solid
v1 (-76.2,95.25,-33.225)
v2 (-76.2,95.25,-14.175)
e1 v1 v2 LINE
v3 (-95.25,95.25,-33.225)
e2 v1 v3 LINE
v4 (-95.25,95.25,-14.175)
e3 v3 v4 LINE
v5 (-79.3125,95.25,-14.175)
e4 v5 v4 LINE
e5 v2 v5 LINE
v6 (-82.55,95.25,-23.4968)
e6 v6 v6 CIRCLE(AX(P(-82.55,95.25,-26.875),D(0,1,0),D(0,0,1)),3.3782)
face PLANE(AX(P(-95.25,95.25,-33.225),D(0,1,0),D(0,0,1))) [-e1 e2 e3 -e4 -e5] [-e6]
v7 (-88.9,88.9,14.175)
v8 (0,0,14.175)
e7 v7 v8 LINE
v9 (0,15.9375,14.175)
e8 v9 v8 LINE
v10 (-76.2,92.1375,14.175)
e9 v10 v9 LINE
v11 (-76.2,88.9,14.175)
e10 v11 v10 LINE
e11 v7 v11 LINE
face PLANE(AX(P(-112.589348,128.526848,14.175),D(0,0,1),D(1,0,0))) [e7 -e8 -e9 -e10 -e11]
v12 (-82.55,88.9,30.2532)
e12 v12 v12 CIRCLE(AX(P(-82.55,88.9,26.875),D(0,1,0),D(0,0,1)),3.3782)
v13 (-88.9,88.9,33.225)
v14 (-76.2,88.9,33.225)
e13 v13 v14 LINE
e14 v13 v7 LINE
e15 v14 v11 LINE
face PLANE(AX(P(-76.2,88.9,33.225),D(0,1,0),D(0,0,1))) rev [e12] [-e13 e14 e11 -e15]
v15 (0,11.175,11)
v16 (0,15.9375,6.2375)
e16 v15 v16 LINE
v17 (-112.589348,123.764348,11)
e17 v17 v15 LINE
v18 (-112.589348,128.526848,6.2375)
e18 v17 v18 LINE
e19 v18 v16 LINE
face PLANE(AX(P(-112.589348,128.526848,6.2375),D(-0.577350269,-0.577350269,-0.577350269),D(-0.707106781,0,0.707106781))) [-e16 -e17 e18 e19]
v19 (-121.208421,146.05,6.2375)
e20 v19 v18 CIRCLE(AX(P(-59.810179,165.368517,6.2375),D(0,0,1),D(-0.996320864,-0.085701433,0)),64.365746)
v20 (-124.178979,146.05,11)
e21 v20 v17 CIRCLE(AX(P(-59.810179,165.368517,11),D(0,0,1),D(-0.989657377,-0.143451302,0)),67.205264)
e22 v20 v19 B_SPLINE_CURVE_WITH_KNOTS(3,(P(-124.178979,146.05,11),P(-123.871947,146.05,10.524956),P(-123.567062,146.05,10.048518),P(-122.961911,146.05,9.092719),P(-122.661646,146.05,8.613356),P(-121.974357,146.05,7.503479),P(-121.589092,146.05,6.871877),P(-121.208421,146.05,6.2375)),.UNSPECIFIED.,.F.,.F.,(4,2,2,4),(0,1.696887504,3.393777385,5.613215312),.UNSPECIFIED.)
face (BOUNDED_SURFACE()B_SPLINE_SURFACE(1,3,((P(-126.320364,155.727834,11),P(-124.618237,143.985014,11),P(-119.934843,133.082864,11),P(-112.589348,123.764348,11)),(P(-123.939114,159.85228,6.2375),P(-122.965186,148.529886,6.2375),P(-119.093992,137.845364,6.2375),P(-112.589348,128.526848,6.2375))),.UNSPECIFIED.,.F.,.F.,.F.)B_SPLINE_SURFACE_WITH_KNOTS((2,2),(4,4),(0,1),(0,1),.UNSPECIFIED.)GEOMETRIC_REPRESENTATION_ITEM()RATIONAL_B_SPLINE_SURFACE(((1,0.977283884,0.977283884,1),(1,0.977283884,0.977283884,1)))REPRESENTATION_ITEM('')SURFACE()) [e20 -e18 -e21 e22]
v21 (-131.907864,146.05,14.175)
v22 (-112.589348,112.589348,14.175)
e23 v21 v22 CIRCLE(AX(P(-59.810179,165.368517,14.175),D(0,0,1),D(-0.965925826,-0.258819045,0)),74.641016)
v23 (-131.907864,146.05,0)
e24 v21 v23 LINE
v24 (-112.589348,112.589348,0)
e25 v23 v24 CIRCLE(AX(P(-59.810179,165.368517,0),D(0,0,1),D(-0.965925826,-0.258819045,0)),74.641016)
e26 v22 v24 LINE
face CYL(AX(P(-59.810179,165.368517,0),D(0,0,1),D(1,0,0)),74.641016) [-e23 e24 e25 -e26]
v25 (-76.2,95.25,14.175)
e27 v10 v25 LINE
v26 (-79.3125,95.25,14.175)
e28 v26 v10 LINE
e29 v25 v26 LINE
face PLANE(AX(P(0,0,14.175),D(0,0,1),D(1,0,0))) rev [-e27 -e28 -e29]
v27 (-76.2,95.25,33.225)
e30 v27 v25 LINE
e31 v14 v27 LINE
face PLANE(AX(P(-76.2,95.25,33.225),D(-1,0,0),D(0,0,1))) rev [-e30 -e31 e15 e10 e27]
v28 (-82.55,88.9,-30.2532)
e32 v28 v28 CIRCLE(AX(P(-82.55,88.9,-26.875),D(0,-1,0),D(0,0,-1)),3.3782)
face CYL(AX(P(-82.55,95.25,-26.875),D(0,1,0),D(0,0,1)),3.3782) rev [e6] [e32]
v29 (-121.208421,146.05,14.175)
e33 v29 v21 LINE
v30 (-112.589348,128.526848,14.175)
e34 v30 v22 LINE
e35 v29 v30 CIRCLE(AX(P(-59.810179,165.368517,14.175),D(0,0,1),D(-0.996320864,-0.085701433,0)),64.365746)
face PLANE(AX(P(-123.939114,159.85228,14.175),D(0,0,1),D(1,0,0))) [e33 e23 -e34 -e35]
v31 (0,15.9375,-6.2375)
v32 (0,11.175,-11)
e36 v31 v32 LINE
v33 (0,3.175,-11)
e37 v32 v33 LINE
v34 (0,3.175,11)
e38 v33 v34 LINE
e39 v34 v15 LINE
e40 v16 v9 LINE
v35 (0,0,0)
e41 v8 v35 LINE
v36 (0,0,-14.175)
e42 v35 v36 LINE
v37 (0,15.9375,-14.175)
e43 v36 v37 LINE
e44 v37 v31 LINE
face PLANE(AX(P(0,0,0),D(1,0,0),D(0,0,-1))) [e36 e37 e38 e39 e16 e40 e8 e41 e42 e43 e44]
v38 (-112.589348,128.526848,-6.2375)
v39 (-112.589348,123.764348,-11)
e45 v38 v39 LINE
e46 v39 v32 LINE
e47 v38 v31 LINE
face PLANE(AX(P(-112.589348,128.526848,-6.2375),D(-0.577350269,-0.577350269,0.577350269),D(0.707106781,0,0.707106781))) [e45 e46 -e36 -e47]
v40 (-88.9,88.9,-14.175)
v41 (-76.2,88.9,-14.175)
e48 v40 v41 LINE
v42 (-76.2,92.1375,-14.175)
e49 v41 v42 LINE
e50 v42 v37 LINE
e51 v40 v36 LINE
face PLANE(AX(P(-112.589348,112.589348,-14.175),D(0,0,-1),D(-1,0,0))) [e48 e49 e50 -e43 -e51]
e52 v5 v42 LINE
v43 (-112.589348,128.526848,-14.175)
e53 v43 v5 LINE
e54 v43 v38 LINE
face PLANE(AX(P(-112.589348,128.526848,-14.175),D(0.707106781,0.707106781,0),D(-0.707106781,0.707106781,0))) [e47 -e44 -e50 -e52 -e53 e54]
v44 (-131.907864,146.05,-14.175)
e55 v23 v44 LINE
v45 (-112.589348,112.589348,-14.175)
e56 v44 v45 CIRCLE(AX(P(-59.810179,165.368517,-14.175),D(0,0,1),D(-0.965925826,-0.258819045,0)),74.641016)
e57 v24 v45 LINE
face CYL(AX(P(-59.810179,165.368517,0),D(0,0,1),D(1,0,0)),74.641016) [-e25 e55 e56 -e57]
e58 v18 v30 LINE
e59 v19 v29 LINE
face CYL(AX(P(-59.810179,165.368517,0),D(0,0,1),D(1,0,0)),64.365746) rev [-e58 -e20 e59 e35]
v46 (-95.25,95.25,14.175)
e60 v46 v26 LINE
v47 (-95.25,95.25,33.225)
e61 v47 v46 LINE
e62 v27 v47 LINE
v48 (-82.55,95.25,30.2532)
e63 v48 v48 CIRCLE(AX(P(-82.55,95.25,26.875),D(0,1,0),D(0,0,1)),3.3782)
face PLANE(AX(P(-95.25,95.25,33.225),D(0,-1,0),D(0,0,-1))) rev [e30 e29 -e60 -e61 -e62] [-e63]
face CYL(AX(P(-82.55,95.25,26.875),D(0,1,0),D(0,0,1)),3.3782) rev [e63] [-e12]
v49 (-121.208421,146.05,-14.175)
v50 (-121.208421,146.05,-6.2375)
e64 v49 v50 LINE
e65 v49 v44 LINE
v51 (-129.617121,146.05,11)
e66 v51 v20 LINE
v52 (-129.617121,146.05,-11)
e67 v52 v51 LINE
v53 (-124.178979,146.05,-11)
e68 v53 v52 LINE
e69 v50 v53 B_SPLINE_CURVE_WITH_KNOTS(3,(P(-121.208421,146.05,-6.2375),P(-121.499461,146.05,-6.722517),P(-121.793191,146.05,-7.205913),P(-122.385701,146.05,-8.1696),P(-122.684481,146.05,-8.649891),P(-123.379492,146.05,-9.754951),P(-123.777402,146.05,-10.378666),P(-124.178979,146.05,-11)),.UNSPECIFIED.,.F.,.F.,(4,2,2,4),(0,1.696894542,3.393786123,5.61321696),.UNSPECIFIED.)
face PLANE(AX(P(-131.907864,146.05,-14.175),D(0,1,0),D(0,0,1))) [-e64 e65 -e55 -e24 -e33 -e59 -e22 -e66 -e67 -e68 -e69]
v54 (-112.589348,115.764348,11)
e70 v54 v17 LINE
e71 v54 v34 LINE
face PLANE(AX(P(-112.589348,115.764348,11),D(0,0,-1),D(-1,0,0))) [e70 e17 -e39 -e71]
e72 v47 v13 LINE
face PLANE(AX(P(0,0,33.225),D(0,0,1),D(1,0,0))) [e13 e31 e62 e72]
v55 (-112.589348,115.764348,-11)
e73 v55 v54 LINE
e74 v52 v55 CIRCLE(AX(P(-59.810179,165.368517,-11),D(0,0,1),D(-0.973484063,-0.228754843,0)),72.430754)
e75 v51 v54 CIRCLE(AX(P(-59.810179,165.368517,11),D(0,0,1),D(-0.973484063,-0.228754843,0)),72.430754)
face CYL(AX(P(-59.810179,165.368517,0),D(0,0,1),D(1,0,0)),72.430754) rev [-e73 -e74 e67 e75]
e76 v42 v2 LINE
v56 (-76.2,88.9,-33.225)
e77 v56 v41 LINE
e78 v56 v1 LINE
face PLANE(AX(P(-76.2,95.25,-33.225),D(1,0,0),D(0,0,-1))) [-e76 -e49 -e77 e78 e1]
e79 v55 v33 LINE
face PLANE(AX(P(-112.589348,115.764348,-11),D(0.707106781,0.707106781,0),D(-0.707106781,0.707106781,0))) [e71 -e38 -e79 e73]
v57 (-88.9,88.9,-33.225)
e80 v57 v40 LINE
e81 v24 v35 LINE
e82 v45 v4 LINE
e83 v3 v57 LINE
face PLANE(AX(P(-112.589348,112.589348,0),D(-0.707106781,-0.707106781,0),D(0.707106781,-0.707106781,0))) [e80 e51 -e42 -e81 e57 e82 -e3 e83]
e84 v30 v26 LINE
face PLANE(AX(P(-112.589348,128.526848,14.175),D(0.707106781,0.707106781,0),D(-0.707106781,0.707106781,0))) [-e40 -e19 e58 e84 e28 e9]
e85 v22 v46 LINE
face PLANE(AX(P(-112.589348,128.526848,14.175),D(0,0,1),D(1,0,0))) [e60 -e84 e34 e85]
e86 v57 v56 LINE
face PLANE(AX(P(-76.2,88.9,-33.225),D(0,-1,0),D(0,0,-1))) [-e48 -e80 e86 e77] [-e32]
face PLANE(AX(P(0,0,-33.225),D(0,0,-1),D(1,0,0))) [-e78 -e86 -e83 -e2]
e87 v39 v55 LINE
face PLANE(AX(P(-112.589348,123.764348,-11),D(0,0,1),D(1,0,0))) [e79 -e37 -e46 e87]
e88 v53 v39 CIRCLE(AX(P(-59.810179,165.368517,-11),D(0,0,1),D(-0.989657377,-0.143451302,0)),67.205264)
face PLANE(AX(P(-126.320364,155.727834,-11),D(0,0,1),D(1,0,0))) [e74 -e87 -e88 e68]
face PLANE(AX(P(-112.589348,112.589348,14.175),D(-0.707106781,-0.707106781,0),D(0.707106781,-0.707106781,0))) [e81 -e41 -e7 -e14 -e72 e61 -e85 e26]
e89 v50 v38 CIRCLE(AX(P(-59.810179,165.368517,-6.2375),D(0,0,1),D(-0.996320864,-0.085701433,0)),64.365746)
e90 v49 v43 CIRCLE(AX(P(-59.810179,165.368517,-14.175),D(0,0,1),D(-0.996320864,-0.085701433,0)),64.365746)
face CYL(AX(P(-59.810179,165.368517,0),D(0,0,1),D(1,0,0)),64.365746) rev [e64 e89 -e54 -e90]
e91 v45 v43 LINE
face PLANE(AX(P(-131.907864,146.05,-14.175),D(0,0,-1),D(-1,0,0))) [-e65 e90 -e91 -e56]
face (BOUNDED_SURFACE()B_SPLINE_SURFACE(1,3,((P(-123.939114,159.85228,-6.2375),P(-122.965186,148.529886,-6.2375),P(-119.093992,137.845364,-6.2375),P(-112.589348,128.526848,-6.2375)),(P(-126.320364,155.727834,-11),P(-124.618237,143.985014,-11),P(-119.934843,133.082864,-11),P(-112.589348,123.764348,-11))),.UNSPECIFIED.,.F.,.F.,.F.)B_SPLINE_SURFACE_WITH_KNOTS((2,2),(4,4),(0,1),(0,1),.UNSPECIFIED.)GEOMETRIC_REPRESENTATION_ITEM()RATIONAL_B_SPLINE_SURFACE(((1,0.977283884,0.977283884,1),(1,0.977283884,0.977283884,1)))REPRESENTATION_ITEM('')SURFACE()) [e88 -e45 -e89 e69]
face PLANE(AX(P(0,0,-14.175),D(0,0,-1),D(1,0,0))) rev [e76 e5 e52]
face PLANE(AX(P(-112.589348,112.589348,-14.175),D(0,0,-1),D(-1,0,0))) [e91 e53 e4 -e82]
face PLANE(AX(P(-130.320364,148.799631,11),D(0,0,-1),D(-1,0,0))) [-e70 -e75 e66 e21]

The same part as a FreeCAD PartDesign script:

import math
import FreeCAD as App
import Part
import Sketcher
Q = App.Units.Quantity


def add_polygon(sketch, points):
    """Adds a closed chain of lines whose ends are joined by coincident constraints."""
    first, n = sketch.GeometryCount, len(points)
    for a, b in zip(points, points[1:] + points[:1]):
        sketch.addGeometry(Part.LineSegment(App.Vector(*a, 0), App.Vector(*b, 0)), False)
    for i in range(n):
        sketch.addConstraint(Sketcher.Constraint("Coincident", first + i, 2, first + (i + 1) % n, 1))

doc = App.newDocument("Part")
body = doc.addObject("PartDesign::Body", "Body")

sketch1 = doc.addObject("Sketcher::SketchObject", "Sketch")
body.addObject(sketch1)
sketch1.AttachmentSupport = (doc.YZ_Plane, [""])
sketch1.MapMode = "FlatFace"
add_polygon(sketch1, [(0, -14), (16, -14), (16, -6), (11, -11), (3, -11), (3, 11), (11, 11), (16, 6), (16, 14), (0, 14)])
sketch1.addConstraint([
    Sketcher.Constraint("Horizontal", 0),
    Sketcher.Constraint("Vertical", 1),
    Sketcher.Constraint("Horizontal", 3),
    Sketcher.Constraint("Vertical", 4),
    Sketcher.Constraint("Horizontal", 5),
    Sketcher.Constraint("Vertical", 7),
    Sketcher.Constraint("Horizontal", 8),
    Sketcher.Constraint("Vertical", 9),
    Sketcher.Constraint("Symmetric", 8, 2, 9, 2, -1, 1),
    Sketcher.Constraint("Symmetric", 2, 2, 5, 2, -1),
    Sketcher.Constraint("Symmetric", 1, 2, 6, 2, -1),
    Sketcher.Constraint("Perpendicular", 2, 6),
    Sketcher.Constraint("DistanceY", 1, 1, 1, 2, Q("0.3125 in")),
    Sketcher.Constraint("DistanceX", -1, 1, 3, 2, Q("0.125 in")),
    Sketcher.Constraint("DistanceX", 2, 2, 0, 2, Q("0.1875 in")),
    Sketcher.Constraint("DistanceX", 0, 1, 0, 2, Q("15.9375 mm")),
    Sketcher.Constraint("DistanceY", 4, 1, 4, 2, Q("22 mm")),
])

sketch2 = doc.addObject("Sketcher::SketchObject", "Sketch001")
body.addObject(sketch2)
sketch2.AttachmentSupport = (doc.XY_Plane, [""])
sketch2.MapMode = "FlatFace"
sketch2.addGeometry([
    Part.LineSegment(App.Vector(0, 0, 0), App.Vector(-113, 113, 0)),
    Part.ArcOfCircle(Part.Circle(App.Vector(-60, 165, 0), App.Vector(0, 0, 1), 75), math.radians(-165), math.radians(-135)),
], False)
sketch2.addConstraint([
    Sketcher.Constraint("Tangent", 0, 2, 1, 2),
    Sketcher.Constraint("Coincident", 0, 1, -1, 1),
    Sketcher.Constraint("Angle", 0, Q("135 deg")),
    Sketcher.Constraint("DistanceY", -1, 1, 1, 1, Q("5.75 in")),
    Sketcher.Constraint("Radius", 1, Q("74.641016 mm")),
    Sketcher.Constraint("DistanceX", 1, 3, -1, 1, Q("59.810179 mm")),
])
doc.recompute()

additivepipe = doc.addObject("PartDesign::AdditivePipe", "AdditivePipe")
body.addObject(additivepipe)
additivepipe.Profile = sketch1
additivepipe.Spine = (sketch2, ["Edge1", "Edge2"])

sketch3 = doc.addObject("Sketcher::SketchObject", "Sketch002")
body.addObject(sketch3)
sketch3.AttachmentSupport = (doc.XY_Plane, [""])
sketch3.MapMode = "FlatFace"
sketch3.AttachmentOffset = App.Placement(App.Vector(0, 0, 14.175), App.Rotation())
add_polygon(sketch3, [(-121, 146), (-132, 146), (-124, 160)])
sketch3.addConstraint([
    Sketcher.Constraint("Horizontal", 0),
    Sketcher.Constraint("Angle", 1, Q("60 deg")),
    Sketcher.Constraint("DistanceY", -1, 1, 0, 2, Q("5.75 in")),
    Sketcher.Constraint("Distance", 1, Q("15.9375 mm")),
    Sketcher.Constraint("DistanceX", 0, 2, 0, 1, Q("10.699443 mm")),
    Sketcher.Constraint("DistanceX", 2, 2, -1, 1, Q("121.208421 mm")),
])
pocket1 = doc.addObject("PartDesign::Pocket", "Pocket")
body.addObject(pocket1)
pocket1.Profile = sketch3
pocket1.Type = "ThroughAll"

sketch4 = doc.addObject("Sketcher::SketchObject", "Sketch003")
body.addObject(sketch4)
sketch4.AttachmentSupport = (doc.XY_Plane, [""])
sketch4.MapMode = "FlatFace"
sketch4.AttachmentOffset = App.Placement(App.Vector(0, 0, 14.175), App.Rotation())
add_polygon(sketch4, [(-95, 95), (-89, 89), (-76, 89), (-76, 95)])
sketch4.addConstraint([
    Sketcher.Constraint("Horizontal", 1),
    Sketcher.Constraint("Vertical", 2),
    Sketcher.Constraint("Horizontal", 3),
    Sketcher.Constraint("DistanceX", 1, 1, 1, 2, Q("0.5 in")),
    Sketcher.Constraint("DistanceX", 1, 2, -1, 1, Q("3 in")),
    Sketcher.Constraint("Angle", 0, Q("-45 deg")),
    Sketcher.Constraint("DistanceX", 3, 2, 3, 1, Q("0.75 in")),
    Sketcher.Constraint("DistanceY", -1, 1, 0, 2, Q("3.5 in")),
])
pad1 = doc.addObject("PartDesign::Pad", "Pad")
body.addObject(pad1)
pad1.Profile = sketch4
pad1.Length = Q("0.75 in")

sketch5 = doc.addObject("Sketcher::SketchObject", "Sketch004")
body.addObject(sketch5)
sketch5.AttachmentSupport = (doc.XZ_Plane, [""])
sketch5.MapMode = "FlatFace"
sketch5.AttachmentOffset = App.Placement(App.Vector(0, 0, -3.75 * 25.4), App.Rotation())
sketch5.addGeometry(Part.Circle(App.Vector(-82.5, 26.9, 0), App.Vector(0, 0, 1), 3.4), False)
sketch5.addConstraint([
    Sketcher.Constraint("Diameter", 0, Q("0.266 in")),
    Sketcher.Constraint("DistanceX", 0, 3, -1, 1, Q("3.25 in")),
    Sketcher.Constraint("DistanceY", -1, 1, 0, 3, Q("26.875 mm")),
])
doc.recompute()
hole = doc.addObject("PartDesign::Hole", "Hole")
body.addObject(hole)
hole.Profile = sketch5
hole.ThreadType = "None"
hole.Diameter = Q("0.266 in")
hole.DepthType = "ThroughAll"
hole.Reversed = True
doc.recompute()

mirrored = doc.addObject("PartDesign::Mirrored", "Mirrored")
body.addObject(mirrored)
mirrored.Originals = [pad1, hole]
mirrored.MirrorPlane = (doc.XY_Plane, [""])
body.Tip = mirrored

doc.recompute()
